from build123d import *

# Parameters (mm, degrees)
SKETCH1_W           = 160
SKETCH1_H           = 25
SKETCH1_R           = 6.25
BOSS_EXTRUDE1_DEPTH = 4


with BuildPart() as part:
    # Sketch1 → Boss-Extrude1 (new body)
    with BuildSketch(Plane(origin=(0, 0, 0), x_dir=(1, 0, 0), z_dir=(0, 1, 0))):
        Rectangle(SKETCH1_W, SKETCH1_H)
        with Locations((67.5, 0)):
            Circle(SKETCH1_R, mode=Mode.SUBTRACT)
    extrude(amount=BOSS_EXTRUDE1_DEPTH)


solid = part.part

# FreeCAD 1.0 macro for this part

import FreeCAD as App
import Part
import Sketcher
from FreeCAD import Vector
Q = App.Units.Quantity

doc = App.newDocument("Part")
body = doc.addObject("PartDesign::Body", "Body")

sketch1 = doc.addObject("Sketcher::SketchObject", "Sketch")
body.addObject(sketch1)
sketch1.AttachmentSupport = (doc.XZ_Plane, [""])
sketch1.MapMode = "FlatFace"
sketch1.addGeometry([
    Part.LineSegment(Vector(-80, -12, 0), Vector(-80, 12, 0)),
    Part.LineSegment(Vector(-80, 12, 0), Vector(80, 12, 0)),
    Part.LineSegment(Vector(80, 12, 0), Vector(80, -12, 0)),
    Part.LineSegment(Vector(80, -12, 0), Vector(-80, -12, 0)),
    Part.Circle(Vector(68, 0, 0), Vector(0, 0, 1), 6),
], False)
sketch1.addConstraint([
    Sketcher.Constraint("Coincident", 0, 2, 1, 1),
    Sketcher.Constraint("Coincident", 1, 2, 2, 1),
    Sketcher.Constraint("Coincident", 2, 2, 3, 1),
    Sketcher.Constraint("Coincident", 3, 2, 0, 1),
    Sketcher.Constraint("Vertical", 0),
    Sketcher.Constraint("Horizontal", 1),
    Sketcher.Constraint("Vertical", 2),
    Sketcher.Constraint("Horizontal", 3),
    Sketcher.Constraint("Symmetric", 0, 2, 2, 2, -1, 1),
    Sketcher.Constraint("PointOnObject", 4, 3, -1),
    Sketcher.Constraint("Diameter", 4, Q("12.5 mm")),
    Sketcher.Constraint("DistanceX", 1, 1, 1, 2, Q("160 mm")),
    Sketcher.Constraint("DistanceY", 0, 1, 0, 2, Q("25 mm")),
    Sketcher.Constraint("DistanceX", -1, 1, 4, 3, Q("67.5 mm")),
])
pad1 = doc.addObject("PartDesign::Pad", "Pad")
body.addObject(pad1)
pad1.Profile = sketch1
pad1.Length = 4
pad1.Reversed = True

doc.recompute()
